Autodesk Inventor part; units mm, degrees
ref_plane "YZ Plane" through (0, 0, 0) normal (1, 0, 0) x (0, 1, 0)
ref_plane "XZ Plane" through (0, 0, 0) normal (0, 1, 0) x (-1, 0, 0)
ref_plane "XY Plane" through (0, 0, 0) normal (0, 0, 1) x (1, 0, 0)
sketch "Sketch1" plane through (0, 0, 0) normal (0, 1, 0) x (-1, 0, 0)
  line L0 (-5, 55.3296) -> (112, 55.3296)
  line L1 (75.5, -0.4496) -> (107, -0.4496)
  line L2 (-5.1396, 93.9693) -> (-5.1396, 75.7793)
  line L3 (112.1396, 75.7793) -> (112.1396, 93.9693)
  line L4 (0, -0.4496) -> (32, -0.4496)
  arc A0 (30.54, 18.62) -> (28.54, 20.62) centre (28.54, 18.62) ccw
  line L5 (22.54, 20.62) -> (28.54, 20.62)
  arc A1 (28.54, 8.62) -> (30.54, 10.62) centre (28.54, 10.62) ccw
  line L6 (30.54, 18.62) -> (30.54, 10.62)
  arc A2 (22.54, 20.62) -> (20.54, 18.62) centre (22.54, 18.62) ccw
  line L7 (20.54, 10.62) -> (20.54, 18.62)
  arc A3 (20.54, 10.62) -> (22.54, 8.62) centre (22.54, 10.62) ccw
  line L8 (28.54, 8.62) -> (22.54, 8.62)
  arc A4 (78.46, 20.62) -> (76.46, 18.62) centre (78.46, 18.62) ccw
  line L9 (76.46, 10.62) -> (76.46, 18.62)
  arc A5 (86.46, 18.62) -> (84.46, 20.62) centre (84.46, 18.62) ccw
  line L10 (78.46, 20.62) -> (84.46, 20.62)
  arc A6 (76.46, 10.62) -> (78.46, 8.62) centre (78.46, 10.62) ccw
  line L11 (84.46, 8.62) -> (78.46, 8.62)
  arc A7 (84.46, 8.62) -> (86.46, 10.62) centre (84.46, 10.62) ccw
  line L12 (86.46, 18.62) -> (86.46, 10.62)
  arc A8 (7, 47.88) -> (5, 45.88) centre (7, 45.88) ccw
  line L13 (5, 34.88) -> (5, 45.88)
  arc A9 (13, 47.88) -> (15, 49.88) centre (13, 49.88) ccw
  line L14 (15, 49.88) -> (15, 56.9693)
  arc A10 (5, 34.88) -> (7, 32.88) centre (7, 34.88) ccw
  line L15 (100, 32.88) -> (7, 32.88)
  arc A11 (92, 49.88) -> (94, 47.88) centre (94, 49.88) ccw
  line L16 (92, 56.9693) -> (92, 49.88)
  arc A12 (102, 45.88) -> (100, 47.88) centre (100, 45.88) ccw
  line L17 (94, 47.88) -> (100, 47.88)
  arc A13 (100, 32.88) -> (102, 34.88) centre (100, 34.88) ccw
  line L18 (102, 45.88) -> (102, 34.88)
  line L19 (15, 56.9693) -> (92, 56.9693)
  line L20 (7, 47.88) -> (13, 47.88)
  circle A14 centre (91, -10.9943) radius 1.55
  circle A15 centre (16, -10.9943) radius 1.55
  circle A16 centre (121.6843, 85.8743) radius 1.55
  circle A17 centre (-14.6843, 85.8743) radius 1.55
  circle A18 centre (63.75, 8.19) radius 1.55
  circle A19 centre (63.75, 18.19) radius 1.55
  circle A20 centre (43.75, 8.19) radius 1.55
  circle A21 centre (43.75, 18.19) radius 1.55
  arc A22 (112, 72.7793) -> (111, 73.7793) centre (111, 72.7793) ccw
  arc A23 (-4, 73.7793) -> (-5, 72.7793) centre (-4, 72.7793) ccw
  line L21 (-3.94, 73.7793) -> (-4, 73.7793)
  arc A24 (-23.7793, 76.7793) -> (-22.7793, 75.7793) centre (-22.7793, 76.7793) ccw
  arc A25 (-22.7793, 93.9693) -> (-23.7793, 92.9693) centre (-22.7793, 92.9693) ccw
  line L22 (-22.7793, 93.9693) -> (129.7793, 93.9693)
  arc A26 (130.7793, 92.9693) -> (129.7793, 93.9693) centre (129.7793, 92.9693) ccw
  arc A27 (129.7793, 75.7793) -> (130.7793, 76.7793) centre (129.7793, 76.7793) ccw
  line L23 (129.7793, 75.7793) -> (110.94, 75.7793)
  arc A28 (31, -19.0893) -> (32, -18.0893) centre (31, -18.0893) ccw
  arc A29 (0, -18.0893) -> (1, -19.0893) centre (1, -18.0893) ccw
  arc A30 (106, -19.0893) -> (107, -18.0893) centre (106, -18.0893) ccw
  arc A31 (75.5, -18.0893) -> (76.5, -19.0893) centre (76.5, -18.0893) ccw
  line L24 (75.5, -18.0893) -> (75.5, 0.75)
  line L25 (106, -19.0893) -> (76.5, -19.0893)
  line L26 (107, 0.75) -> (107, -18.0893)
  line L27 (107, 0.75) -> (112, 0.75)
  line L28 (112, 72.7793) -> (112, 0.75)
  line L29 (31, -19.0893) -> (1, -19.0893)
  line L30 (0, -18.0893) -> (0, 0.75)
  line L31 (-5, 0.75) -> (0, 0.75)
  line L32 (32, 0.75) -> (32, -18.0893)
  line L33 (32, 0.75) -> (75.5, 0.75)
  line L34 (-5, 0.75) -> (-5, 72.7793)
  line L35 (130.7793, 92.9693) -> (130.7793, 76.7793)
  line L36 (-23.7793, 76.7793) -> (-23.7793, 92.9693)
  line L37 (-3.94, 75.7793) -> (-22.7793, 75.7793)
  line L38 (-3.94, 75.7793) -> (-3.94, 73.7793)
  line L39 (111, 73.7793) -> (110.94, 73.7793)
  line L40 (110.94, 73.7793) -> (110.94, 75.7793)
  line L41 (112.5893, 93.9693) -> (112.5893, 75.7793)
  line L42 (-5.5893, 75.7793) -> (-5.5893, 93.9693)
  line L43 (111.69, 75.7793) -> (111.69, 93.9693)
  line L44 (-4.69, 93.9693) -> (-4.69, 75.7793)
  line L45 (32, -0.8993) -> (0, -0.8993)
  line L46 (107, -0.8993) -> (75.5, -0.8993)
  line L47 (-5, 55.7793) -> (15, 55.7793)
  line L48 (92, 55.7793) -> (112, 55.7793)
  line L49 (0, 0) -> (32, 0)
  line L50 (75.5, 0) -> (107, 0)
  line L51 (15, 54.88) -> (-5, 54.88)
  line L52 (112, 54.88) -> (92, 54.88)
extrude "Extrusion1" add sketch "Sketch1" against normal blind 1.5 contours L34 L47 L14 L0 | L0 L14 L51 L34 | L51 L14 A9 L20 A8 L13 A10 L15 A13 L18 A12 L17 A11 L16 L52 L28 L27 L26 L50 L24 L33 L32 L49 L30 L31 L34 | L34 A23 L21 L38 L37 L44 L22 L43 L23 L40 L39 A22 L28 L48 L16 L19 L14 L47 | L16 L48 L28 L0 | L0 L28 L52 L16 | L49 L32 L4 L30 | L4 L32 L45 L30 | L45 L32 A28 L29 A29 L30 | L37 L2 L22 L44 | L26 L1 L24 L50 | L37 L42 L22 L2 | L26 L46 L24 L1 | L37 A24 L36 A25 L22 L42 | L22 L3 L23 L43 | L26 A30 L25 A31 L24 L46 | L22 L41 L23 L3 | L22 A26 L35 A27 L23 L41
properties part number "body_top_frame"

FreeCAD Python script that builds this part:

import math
import FreeCAD as App
import Part
import Sketcher

V = App.Vector

doc = App.newDocument("Part")
body = doc.addObject("PartDesign::Body", "Body")

# Sketch on XZ plane
sketch1 = body.newObject("Sketcher::SketchObject", "Sketch")
sketch1.AttachmentSupport = (doc.getObject("XZ_Plane"), [""])
sketch1.MapMode = "FlatFace"
sketch1.addGeometry([
    Part.LineSegment(V(5, 0.75, 0), V(0, 0.75, 0)),  # 0
    Part.LineSegment(V(0, 0.75, 0), V(0, -18.09, 0)),  # 1
    Part.ArcOfCircle(Part.Circle(V(-1, -18.09, 0), V(0, 0, 1), 1), math.radians(-90), math.radians(0)),  # 2
    Part.LineSegment(V(-1, -19.09, 0), V(-31, -19.09, 0)),  # 3
    Part.ArcOfCircle(Part.Circle(V(-31, -18.09, 0), V(0, 0, 1), 1), math.radians(180), math.radians(270)),  # 4
    Part.LineSegment(V(-32, -18.09, 0), V(-32, 0.75, 0)),  # 5
    Part.LineSegment(V(-32, 0.75, 0), V(-75.5, 0.75, 0)),  # 6
    Part.LineSegment(V(-75.5, 0.75, 0), V(-75.5, -18.09, 0)),  # 7
    Part.ArcOfCircle(Part.Circle(V(-76.5, -18.09, 0), V(0, 0, 1), 1), math.radians(-90), math.radians(0)),  # 8
    Part.LineSegment(V(-76.5, -19.09, 0), V(-106, -19.09, 0)),  # 9
    Part.ArcOfCircle(Part.Circle(V(-106, -18.09, 0), V(0, 0, 1), 1), math.radians(180), math.radians(270)),  # 10
    Part.LineSegment(V(-107, -18.09, 0), V(-107, 0.75, 0)),  # 11
    Part.LineSegment(V(-107, 0.75, 0), V(-112, 0.75, 0)),  # 12
    Part.LineSegment(V(-112, 0.75, 0), V(-112, 72.78, 0)),  # 13
    Part.ArcOfCircle(Part.Circle(V(-111, 72.78, 0), V(0, 0, 1), 1), math.radians(90), math.radians(180)),  # 14
    Part.LineSegment(V(-111, 73.78, 0), V(-110.94, 73.78, 0)),  # 15
    Part.LineSegment(V(-110.94, 73.78, 0), V(-110.94, 75.78, 0)),  # 16
    Part.LineSegment(V(-110.94, 75.78, 0), V(-129.78, 75.78, 0)),  # 17
    Part.ArcOfCircle(Part.Circle(V(-129.78, 76.78, 0), V(0, 0, 1), 1), math.radians(180), math.radians(270)),  # 18
    Part.LineSegment(V(-130.78, 76.78, 0), V(-130.78, 92.97, 0)),  # 19
    Part.ArcOfCircle(Part.Circle(V(-129.78, 92.97, 0), V(0, 0, 1), 1), math.radians(90), math.radians(180)),  # 20
    Part.LineSegment(V(-129.78, 93.97, 0), V(22.78, 93.97, 0)),  # 21
    Part.ArcOfCircle(Part.Circle(V(22.78, 92.97, 0), V(0, 0, 1), 1), math.radians(0), math.radians(90)),  # 22
    Part.LineSegment(V(23.78, 92.97, 0), V(23.78, 76.78, 0)),  # 23
    Part.ArcOfCircle(Part.Circle(V(22.78, 76.78, 0), V(0, 0, 1), 1), math.radians(-90), math.radians(0)),  # 24
    Part.LineSegment(V(22.78, 75.78, 0), V(3.94, 75.78, 0)),  # 25
    Part.LineSegment(V(3.94, 75.78, 0), V(3.94, 73.78, 0)),  # 26
    Part.LineSegment(V(3.94, 73.78, 0), V(4, 73.78, 0)),  # 27
    Part.ArcOfCircle(Part.Circle(V(4, 72.78, 0), V(0, 0, 1), 1), math.radians(0), math.radians(90)),  # 28
    Part.LineSegment(V(5, 72.78, 0), V(5, 0.75, 0)),  # 29
    Part.LineSegment(V(-15, 56.97, 0), V(-92, 56.97, 0)),  # 30
    Part.LineSegment(V(-92, 56.97, 0), V(-92, 49.88, 0)),  # 31
    Part.ArcOfCircle(Part.Circle(V(-94, 49.88, 0), V(0, 0, 1), 2), math.radians(-90), math.radians(0)),  # 32
    Part.LineSegment(V(-94, 47.88, 0), V(-100, 47.88, 0)),  # 33
    Part.ArcOfCircle(Part.Circle(V(-100, 45.88, 0), V(0, 0, 1), 2), math.radians(90), math.radians(180)),  # 34
    Part.LineSegment(V(-102, 45.88, 0), V(-102, 34.88, 0)),  # 35
    Part.ArcOfCircle(Part.Circle(V(-100, 34.88, 0), V(0, 0, 1), 2), math.radians(180), math.radians(270)),  # 36
    Part.LineSegment(V(-100, 32.88, 0), V(-7, 32.88, 0)),  # 37
    Part.ArcOfCircle(Part.Circle(V(-7, 34.88, 0), V(0, 0, 1), 2), math.radians(-90), math.radians(0)),  # 38
    Part.LineSegment(V(-5, 34.88, 0), V(-5, 45.88, 0)),  # 39
    Part.ArcOfCircle(Part.Circle(V(-7, 45.88, 0), V(0, 0, 1), 2), math.radians(0), math.radians(90)),  # 40
    Part.LineSegment(V(-7, 47.88, 0), V(-13, 47.88, 0)),  # 41
    Part.ArcOfCircle(Part.Circle(V(-13, 49.88, 0), V(0, 0, 1), 2), math.radians(180), math.radians(270)),  # 42
    Part.LineSegment(V(-15, 49.88, 0), V(-15, 56.97, 0)),  # 43
    Part.LineSegment(V(-78.46, 20.62, 0), V(-84.46, 20.62, 0)),  # 44
    Part.ArcOfCircle(Part.Circle(V(-84.46, 18.62, 0), V(0, 0, 1), 2), math.radians(90), math.radians(180)),  # 45
    Part.LineSegment(V(-86.46, 18.62, 0), V(-86.46, 10.62, 0)),  # 46
    Part.ArcOfCircle(Part.Circle(V(-84.46, 10.62, 0), V(0, 0, 1), 2), math.radians(180), math.radians(270)),  # 47
    Part.LineSegment(V(-84.46, 8.62, 0), V(-78.46, 8.62, 0)),  # 48
    Part.ArcOfCircle(Part.Circle(V(-78.46, 10.62, 0), V(0, 0, 1), 2), math.radians(-90), math.radians(0)),  # 49
    Part.LineSegment(V(-76.46, 10.62, 0), V(-76.46, 18.62, 0)),  # 50
    Part.ArcOfCircle(Part.Circle(V(-78.46, 18.62, 0), V(0, 0, 1), 2), math.radians(0), math.radians(90)),  # 51
    Part.Circle(V(-43.75, 8.19, 0), V(0, 0, 1), 1.55),  # 52
    Part.ArcOfCircle(Part.Circle(V(-28.54, 18.62, 0), V(0, 0, 1), 2), math.radians(90), math.radians(180)),  # 53
    Part.LineSegment(V(-30.54, 18.62, 0), V(-30.54, 10.62, 0)),  # 54
    Part.ArcOfCircle(Part.Circle(V(-28.54, 10.62, 0), V(0, 0, 1), 2), math.radians(180), math.radians(270)),  # 55
    Part.LineSegment(V(-28.54, 8.62, 0), V(-22.54, 8.62, 0)),  # 56
    Part.ArcOfCircle(Part.Circle(V(-22.54, 10.62, 0), V(0, 0, 1), 2), math.radians(-90), math.radians(0)),  # 57
    Part.LineSegment(V(-20.54, 10.62, 0), V(-20.54, 18.62, 0)),  # 58
    Part.ArcOfCircle(Part.Circle(V(-22.54, 18.62, 0), V(0, 0, 1), 2), math.radians(0), math.radians(90)),  # 59
    Part.LineSegment(V(-22.54, 20.62, 0), V(-28.54, 20.62, 0)),  # 60
    Part.Circle(V(-43.75, 18.19, 0), V(0, 0, 1), 1.55),  # 61
    Part.Circle(V(-63.75, 8.19, 0), V(0, 0, 1), 1.55),  # 62
    Part.Circle(V(-63.75, 18.19, 0), V(0, 0, 1), 1.55),  # 63
    Part.Circle(V(14.68, 85.87, 0), V(0, 0, 1), 1.55),  # 64
    Part.Circle(V(-121.68, 85.87, 0), V(0, 0, 1), 1.55),  # 65
    Part.Circle(V(-91, -10.99, 0), V(0, 0, 1), 1.55),  # 66
    Part.Circle(V(-16, -10.99, 0), V(0, 0, 1), 1.55),  # 67
], False)
sketch1.addConstraint([
    Sketcher.Constraint("Coincident", 0, 2, 1, 1),
    Sketcher.Constraint("Tangent", 1, 2, 2, 2),
    Sketcher.Constraint("Tangent", 2, 1, 3, 1),
    Sketcher.Constraint("Tangent", 3, 2, 4, 2),
    Sketcher.Constraint("Tangent", 4, 1, 5, 1),
    Sketcher.Constraint("Coincident", 5, 2, 6, 1),
    Sketcher.Constraint("Coincident", 6, 2, 7, 1),
    Sketcher.Constraint("Tangent", 7, 2, 8, 2),
    Sketcher.Constraint("Tangent", 8, 1, 9, 1),
    Sketcher.Constraint("Tangent", 9, 2, 10, 2),
    Sketcher.Constraint("Tangent", 10, 1, 11, 1),
    Sketcher.Constraint("Coincident", 11, 2, 12, 1),
    Sketcher.Constraint("Coincident", 12, 2, 13, 1),
    Sketcher.Constraint("Tangent", 13, 2, 14, 2),
    Sketcher.Constraint("Tangent", 14, 1, 15, 1),
    Sketcher.Constraint("Coincident", 15, 2, 16, 1),
    Sketcher.Constraint("Coincident", 16, 2, 17, 1),
    Sketcher.Constraint("Tangent", 17, 2, 18, 2),
    Sketcher.Constraint("Tangent", 18, 1, 19, 1),
    Sketcher.Constraint("Tangent", 19, 2, 20, 2),
    Sketcher.Constraint("Tangent", 20, 1, 21, 1),
    Sketcher.Constraint("Tangent", 21, 2, 22, 2),
    Sketcher.Constraint("Tangent", 22, 1, 23, 1),
    Sketcher.Constraint("Tangent", 23, 2, 24, 2),
    Sketcher.Constraint("Tangent", 24, 1, 25, 1),
    Sketcher.Constraint("Coincident", 25, 2, 26, 1),
    Sketcher.Constraint("Coincident", 26, 2, 27, 1),
    Sketcher.Constraint("Tangent", 27, 2, 28, 2),
    Sketcher.Constraint("Tangent", 28, 1, 29, 1),
    Sketcher.Constraint("Coincident", 29, 2, 0, 1),
    Sketcher.Constraint("Coincident", 30, 2, 31, 1),
    Sketcher.Constraint("Tangent", 31, 2, 32, 2),
    Sketcher.Constraint("Tangent", 32, 1, 33, 1),
    Sketcher.Constraint("Tangent", 33, 2, 34, 1),
    Sketcher.Constraint("Tangent", 34, 2, 35, 1),
    Sketcher.Constraint("Tangent", 35, 2, 36, 1),
    Sketcher.Constraint("Tangent", 36, 2, 37, 1),
    Sketcher.Constraint("Tangent", 37, 2, 38, 1),
    Sketcher.Constraint("Tangent", 38, 2, 39, 1),
    Sketcher.Constraint("Tangent", 39, 2, 40, 1),
    Sketcher.Constraint("Tangent", 40, 2, 41, 1),
    Sketcher.Constraint("Tangent", 41, 2, 42, 2),
    Sketcher.Constraint("Tangent", 42, 1, 43, 1),
    Sketcher.Constraint("Coincident", 43, 2, 30, 1),
    Sketcher.Constraint("Tangent", 44, 2, 45, 1),
    Sketcher.Constraint("Tangent", 45, 2, 46, 1),
    Sketcher.Constraint("Tangent", 46, 2, 47, 1),
    Sketcher.Constraint("Tangent", 47, 2, 48, 1),
    Sketcher.Constraint("Tangent", 48, 2, 49, 1),
    Sketcher.Constraint("Tangent", 49, 2, 50, 1),
    Sketcher.Constraint("Tangent", 50, 2, 51, 1),
    Sketcher.Constraint("Tangent", 51, 2, 44, 1),
    Sketcher.Constraint("Tangent", 53, 2, 54, 1),
    Sketcher.Constraint("Tangent", 54, 2, 55, 1),
    Sketcher.Constraint("Tangent", 55, 2, 56, 1),
    Sketcher.Constraint("Tangent", 56, 2, 57, 1),
    Sketcher.Constraint("Tangent", 57, 2, 58, 1),
    Sketcher.Constraint("Tangent", 58, 2, 59, 1),
    Sketcher.Constraint("Tangent", 59, 2, 60, 1),
    Sketcher.Constraint("Tangent", 60, 2, 53, 1),
    Sketcher.Constraint("Horizontal", 0),
    Sketcher.Constraint("Vertical", 1),
    Sketcher.Constraint("Horizontal", 3),
    Sketcher.Constraint("Vertical", 5),
    Sketcher.Constraint("Horizontal", 6),
    Sketcher.Constraint("Vertical", 7),
    Sketcher.Constraint("Horizontal", 9),
    Sketcher.Constraint("Vertical", 11),
    Sketcher.Constraint("Horizontal", 12),
    Sketcher.Constraint("Vertical", 13),
    Sketcher.Constraint("Horizontal", 15),
    Sketcher.Constraint("Vertical", 16),
    Sketcher.Constraint("Horizontal", 17),
    Sketcher.Constraint("Vertical", 19),
    Sketcher.Constraint("Horizontal", 21),
    Sketcher.Constraint("Vertical", 23),
    Sketcher.Constraint("Horizontal", 25),
    Sketcher.Constraint("Vertical", 26),
    Sketcher.Constraint("Horizontal", 27),
    Sketcher.Constraint("Vertical", 29),
    Sketcher.Constraint("Horizontal", 30),
    Sketcher.Constraint("Vertical", 31),
    Sketcher.Constraint("Horizontal", 33),
    Sketcher.Constraint("Vertical", 35),
    Sketcher.Constraint("Horizontal", 37),
    Sketcher.Constraint("Vertical", 39),
    Sketcher.Constraint("Horizontal", 41),
    Sketcher.Constraint("Vertical", 43),
    Sketcher.Constraint("Horizontal", 44),
    Sketcher.Constraint("Vertical", 46),
    Sketcher.Constraint("Horizontal", 48),
    Sketcher.Constraint("Vertical", 50),
    Sketcher.Constraint("Vertical", 54),
    Sketcher.Constraint("Horizontal", 56),
    Sketcher.Constraint("Vertical", 58),
    Sketcher.Constraint("Horizontal", 60),
    Sketcher.Constraint("Equal", 2, 4),
    Sketcher.Constraint("Equal", 4, 8),
    Sketcher.Constraint("Equal", 8, 10),
    Sketcher.Constraint("Equal", 10, 14),
    Sketcher.Constraint("Equal", 14, 18),
    Sketcher.Constraint("Equal", 18, 20),
    Sketcher.Constraint("Equal", 20, 22),
    Sketcher.Constraint("Equal", 22, 24),
    Sketcher.Constraint("Equal", 24, 28),
    Sketcher.Constraint("Equal", 32, 34),
    Sketcher.Constraint("Equal", 34, 36),
    Sketcher.Constraint("Equal", 36, 38),
    Sketcher.Constraint("Equal", 38, 40),
    Sketcher.Constraint("Equal", 40, 42),
    Sketcher.Constraint("Equal", 42, 45),
    Sketcher.Constraint("Equal", 45, 47),
    Sketcher.Constraint("Equal", 47, 49),
    Sketcher.Constraint("Equal", 49, 51),
    Sketcher.Constraint("Equal", 51, 53),
    Sketcher.Constraint("Equal", 53, 55),
    Sketcher.Constraint("Equal", 55, 57),
    Sketcher.Constraint("Equal", 57, 59),
    Sketcher.Constraint("Equal", 52, 61),
    Sketcher.Constraint("Equal", 61, 62),
    Sketcher.Constraint("Equal", 62, 63),
    Sketcher.Constraint("Equal", 63, 64),
    Sketcher.Constraint("Equal", 64, 65),
    Sketcher.Constraint("Equal", 65, 66),
    Sketcher.Constraint("Equal", 66, 67),
    Sketcher.Constraint("PointOnObject", 0, 2, -2),
    Sketcher.Constraint("Horizontal", 4, 3, 8, 3),
    Sketcher.Constraint("Horizontal", 18, 3, 24, 3),
    Sketcher.Constraint("Horizontal", 14, 3, 28, 3),
    Sketcher.Constraint("Horizontal", 34, 3, 40, 3),
    Sketcher.Constraint("Horizontal", 51, 3, 53, 3),
    Sketcher.Constraint("Horizontal", 49, 3, 55, 3),
    Sketcher.Constraint("Horizontal", 52, 3, 62, 3),
    Sketcher.Constraint("Horizontal", 61, 3, 63, 3),
    Sketcher.Constraint("Horizontal", 64, 3, 65, 3),
    Sketcher.Constraint("Horizontal", 66, 3, 67, 3),
    Sketcher.Constraint("Horizontal", 0, 2, 5, 2),
    Sketcher.Constraint("Horizontal", 6, 2, 11, 2),
    Sketcher.Constraint("Vertical", 52, 3, 61, 3),
    Sketcher.Constraint("Vertical", 62, 3, 63, 3),
    Sketcher.Constraint("Equal", 0, 12),
    Sketcher.Constraint("Equal", 17, 25),
    Sketcher.Constraint("Equal", 15, 27),
    Sketcher.Constraint("Equal", 33, 41),
    Sketcher.Constraint("Equal", 41, 44),
    Sketcher.Constraint("Equal", 48, 56),
    Sketcher.Constraint("Equal", 25, 1),
    Sketcher.Constraint("Radius", 2, 1.0),
    Sketcher.Constraint("Radius", 32, 2.0),
    Sketcher.Constraint("Diameter", 52, 3.1),
    Sketcher.Constraint("DistanceX", 0, 2, 0, 1, 5.0),
    Sketcher.Constraint("DistanceX", 3, 2, 3, 1, 30.0),
    Sketcher.Constraint("DistanceX", 30, 2, 30, 1, 77.0),
    Sketcher.Constraint("DistanceX", 33, 2, 33, 1, 6.0),
    Sketcher.Constraint("DistanceY", 16, 1, 16, 2, 2.0),
    Sketcher.Constraint("DistanceY", 35, 2, 35, 1, 11.0),
    Sketcher.Constraint("DistanceY", 46, 2, 46, 1, 8.0),
    Sketcher.Constraint("DistanceX", 6, 2, 6, 1, 43.5),
    Sketcher.Constraint("DistanceX", 9, 2, 9, 1, 29.5),
    Sketcher.Constraint("DistanceX", 32, 3, -1, 1, 94.0),
    Sketcher.Constraint("DistanceX", 66, 3, -1, 1, 91.0),
    Sketcher.Constraint("DistanceX", 67, 3, -1, 1, 16.0),
    Sketcher.Constraint("DistanceX", 15, 1, 15, 2, 0.06),
    Sketcher.Constraint("DistanceY", 19, 1, 19, 2, 16.19),
    Sketcher.Constraint("DistanceY", -1, 1, 32, 3, 49.88),
    Sketcher.Constraint("DistanceX", 45, 3, -1, 1, 84.46),
    Sketcher.Constraint("DistanceY", -1, 1, 45, 3, 18.62),
    Sketcher.Constraint("DistanceX", 52, 3, -1, 1, 43.75),
    Sketcher.Constraint("DistanceY", -1, 1, 52, 3, 8.19),
    Sketcher.Constraint("DistanceX", 53, 3, -1, 1, 28.54),
    Sketcher.Constraint("DistanceY", -1, 1, 61, 3, 18.19),
    Sketcher.Constraint("DistanceX", 62, 3, -1, 1, 63.75),
    Sketcher.Constraint("DistanceY", -1, 1, 0, 2, 0.75),
    Sketcher.Constraint("DistanceX", 17, 2, 17, 1, 18.8393),
    Sketcher.Constraint("DistanceY", 13, 1, 13, 2, 72.0293),
    Sketcher.Constraint("DistanceY", 31, 2, 31, 1, 7.0893),
    Sketcher.Constraint("DistanceX", -1, 1, 64, 3, 14.6843),
    Sketcher.Constraint("DistanceY", -1, 1, 64, 3, 85.8743),
    Sketcher.Constraint("DistanceX", 65, 3, -1, 1, 121.6843),
    Sketcher.Constraint("DistanceY", 66, 3, -1, 1, 10.9943),
])
pad1 = body.newObject("PartDesign::Pad", "Pad")
pad1.Profile = sketch1
pad1.Length = 1.5

doc.recompute()
